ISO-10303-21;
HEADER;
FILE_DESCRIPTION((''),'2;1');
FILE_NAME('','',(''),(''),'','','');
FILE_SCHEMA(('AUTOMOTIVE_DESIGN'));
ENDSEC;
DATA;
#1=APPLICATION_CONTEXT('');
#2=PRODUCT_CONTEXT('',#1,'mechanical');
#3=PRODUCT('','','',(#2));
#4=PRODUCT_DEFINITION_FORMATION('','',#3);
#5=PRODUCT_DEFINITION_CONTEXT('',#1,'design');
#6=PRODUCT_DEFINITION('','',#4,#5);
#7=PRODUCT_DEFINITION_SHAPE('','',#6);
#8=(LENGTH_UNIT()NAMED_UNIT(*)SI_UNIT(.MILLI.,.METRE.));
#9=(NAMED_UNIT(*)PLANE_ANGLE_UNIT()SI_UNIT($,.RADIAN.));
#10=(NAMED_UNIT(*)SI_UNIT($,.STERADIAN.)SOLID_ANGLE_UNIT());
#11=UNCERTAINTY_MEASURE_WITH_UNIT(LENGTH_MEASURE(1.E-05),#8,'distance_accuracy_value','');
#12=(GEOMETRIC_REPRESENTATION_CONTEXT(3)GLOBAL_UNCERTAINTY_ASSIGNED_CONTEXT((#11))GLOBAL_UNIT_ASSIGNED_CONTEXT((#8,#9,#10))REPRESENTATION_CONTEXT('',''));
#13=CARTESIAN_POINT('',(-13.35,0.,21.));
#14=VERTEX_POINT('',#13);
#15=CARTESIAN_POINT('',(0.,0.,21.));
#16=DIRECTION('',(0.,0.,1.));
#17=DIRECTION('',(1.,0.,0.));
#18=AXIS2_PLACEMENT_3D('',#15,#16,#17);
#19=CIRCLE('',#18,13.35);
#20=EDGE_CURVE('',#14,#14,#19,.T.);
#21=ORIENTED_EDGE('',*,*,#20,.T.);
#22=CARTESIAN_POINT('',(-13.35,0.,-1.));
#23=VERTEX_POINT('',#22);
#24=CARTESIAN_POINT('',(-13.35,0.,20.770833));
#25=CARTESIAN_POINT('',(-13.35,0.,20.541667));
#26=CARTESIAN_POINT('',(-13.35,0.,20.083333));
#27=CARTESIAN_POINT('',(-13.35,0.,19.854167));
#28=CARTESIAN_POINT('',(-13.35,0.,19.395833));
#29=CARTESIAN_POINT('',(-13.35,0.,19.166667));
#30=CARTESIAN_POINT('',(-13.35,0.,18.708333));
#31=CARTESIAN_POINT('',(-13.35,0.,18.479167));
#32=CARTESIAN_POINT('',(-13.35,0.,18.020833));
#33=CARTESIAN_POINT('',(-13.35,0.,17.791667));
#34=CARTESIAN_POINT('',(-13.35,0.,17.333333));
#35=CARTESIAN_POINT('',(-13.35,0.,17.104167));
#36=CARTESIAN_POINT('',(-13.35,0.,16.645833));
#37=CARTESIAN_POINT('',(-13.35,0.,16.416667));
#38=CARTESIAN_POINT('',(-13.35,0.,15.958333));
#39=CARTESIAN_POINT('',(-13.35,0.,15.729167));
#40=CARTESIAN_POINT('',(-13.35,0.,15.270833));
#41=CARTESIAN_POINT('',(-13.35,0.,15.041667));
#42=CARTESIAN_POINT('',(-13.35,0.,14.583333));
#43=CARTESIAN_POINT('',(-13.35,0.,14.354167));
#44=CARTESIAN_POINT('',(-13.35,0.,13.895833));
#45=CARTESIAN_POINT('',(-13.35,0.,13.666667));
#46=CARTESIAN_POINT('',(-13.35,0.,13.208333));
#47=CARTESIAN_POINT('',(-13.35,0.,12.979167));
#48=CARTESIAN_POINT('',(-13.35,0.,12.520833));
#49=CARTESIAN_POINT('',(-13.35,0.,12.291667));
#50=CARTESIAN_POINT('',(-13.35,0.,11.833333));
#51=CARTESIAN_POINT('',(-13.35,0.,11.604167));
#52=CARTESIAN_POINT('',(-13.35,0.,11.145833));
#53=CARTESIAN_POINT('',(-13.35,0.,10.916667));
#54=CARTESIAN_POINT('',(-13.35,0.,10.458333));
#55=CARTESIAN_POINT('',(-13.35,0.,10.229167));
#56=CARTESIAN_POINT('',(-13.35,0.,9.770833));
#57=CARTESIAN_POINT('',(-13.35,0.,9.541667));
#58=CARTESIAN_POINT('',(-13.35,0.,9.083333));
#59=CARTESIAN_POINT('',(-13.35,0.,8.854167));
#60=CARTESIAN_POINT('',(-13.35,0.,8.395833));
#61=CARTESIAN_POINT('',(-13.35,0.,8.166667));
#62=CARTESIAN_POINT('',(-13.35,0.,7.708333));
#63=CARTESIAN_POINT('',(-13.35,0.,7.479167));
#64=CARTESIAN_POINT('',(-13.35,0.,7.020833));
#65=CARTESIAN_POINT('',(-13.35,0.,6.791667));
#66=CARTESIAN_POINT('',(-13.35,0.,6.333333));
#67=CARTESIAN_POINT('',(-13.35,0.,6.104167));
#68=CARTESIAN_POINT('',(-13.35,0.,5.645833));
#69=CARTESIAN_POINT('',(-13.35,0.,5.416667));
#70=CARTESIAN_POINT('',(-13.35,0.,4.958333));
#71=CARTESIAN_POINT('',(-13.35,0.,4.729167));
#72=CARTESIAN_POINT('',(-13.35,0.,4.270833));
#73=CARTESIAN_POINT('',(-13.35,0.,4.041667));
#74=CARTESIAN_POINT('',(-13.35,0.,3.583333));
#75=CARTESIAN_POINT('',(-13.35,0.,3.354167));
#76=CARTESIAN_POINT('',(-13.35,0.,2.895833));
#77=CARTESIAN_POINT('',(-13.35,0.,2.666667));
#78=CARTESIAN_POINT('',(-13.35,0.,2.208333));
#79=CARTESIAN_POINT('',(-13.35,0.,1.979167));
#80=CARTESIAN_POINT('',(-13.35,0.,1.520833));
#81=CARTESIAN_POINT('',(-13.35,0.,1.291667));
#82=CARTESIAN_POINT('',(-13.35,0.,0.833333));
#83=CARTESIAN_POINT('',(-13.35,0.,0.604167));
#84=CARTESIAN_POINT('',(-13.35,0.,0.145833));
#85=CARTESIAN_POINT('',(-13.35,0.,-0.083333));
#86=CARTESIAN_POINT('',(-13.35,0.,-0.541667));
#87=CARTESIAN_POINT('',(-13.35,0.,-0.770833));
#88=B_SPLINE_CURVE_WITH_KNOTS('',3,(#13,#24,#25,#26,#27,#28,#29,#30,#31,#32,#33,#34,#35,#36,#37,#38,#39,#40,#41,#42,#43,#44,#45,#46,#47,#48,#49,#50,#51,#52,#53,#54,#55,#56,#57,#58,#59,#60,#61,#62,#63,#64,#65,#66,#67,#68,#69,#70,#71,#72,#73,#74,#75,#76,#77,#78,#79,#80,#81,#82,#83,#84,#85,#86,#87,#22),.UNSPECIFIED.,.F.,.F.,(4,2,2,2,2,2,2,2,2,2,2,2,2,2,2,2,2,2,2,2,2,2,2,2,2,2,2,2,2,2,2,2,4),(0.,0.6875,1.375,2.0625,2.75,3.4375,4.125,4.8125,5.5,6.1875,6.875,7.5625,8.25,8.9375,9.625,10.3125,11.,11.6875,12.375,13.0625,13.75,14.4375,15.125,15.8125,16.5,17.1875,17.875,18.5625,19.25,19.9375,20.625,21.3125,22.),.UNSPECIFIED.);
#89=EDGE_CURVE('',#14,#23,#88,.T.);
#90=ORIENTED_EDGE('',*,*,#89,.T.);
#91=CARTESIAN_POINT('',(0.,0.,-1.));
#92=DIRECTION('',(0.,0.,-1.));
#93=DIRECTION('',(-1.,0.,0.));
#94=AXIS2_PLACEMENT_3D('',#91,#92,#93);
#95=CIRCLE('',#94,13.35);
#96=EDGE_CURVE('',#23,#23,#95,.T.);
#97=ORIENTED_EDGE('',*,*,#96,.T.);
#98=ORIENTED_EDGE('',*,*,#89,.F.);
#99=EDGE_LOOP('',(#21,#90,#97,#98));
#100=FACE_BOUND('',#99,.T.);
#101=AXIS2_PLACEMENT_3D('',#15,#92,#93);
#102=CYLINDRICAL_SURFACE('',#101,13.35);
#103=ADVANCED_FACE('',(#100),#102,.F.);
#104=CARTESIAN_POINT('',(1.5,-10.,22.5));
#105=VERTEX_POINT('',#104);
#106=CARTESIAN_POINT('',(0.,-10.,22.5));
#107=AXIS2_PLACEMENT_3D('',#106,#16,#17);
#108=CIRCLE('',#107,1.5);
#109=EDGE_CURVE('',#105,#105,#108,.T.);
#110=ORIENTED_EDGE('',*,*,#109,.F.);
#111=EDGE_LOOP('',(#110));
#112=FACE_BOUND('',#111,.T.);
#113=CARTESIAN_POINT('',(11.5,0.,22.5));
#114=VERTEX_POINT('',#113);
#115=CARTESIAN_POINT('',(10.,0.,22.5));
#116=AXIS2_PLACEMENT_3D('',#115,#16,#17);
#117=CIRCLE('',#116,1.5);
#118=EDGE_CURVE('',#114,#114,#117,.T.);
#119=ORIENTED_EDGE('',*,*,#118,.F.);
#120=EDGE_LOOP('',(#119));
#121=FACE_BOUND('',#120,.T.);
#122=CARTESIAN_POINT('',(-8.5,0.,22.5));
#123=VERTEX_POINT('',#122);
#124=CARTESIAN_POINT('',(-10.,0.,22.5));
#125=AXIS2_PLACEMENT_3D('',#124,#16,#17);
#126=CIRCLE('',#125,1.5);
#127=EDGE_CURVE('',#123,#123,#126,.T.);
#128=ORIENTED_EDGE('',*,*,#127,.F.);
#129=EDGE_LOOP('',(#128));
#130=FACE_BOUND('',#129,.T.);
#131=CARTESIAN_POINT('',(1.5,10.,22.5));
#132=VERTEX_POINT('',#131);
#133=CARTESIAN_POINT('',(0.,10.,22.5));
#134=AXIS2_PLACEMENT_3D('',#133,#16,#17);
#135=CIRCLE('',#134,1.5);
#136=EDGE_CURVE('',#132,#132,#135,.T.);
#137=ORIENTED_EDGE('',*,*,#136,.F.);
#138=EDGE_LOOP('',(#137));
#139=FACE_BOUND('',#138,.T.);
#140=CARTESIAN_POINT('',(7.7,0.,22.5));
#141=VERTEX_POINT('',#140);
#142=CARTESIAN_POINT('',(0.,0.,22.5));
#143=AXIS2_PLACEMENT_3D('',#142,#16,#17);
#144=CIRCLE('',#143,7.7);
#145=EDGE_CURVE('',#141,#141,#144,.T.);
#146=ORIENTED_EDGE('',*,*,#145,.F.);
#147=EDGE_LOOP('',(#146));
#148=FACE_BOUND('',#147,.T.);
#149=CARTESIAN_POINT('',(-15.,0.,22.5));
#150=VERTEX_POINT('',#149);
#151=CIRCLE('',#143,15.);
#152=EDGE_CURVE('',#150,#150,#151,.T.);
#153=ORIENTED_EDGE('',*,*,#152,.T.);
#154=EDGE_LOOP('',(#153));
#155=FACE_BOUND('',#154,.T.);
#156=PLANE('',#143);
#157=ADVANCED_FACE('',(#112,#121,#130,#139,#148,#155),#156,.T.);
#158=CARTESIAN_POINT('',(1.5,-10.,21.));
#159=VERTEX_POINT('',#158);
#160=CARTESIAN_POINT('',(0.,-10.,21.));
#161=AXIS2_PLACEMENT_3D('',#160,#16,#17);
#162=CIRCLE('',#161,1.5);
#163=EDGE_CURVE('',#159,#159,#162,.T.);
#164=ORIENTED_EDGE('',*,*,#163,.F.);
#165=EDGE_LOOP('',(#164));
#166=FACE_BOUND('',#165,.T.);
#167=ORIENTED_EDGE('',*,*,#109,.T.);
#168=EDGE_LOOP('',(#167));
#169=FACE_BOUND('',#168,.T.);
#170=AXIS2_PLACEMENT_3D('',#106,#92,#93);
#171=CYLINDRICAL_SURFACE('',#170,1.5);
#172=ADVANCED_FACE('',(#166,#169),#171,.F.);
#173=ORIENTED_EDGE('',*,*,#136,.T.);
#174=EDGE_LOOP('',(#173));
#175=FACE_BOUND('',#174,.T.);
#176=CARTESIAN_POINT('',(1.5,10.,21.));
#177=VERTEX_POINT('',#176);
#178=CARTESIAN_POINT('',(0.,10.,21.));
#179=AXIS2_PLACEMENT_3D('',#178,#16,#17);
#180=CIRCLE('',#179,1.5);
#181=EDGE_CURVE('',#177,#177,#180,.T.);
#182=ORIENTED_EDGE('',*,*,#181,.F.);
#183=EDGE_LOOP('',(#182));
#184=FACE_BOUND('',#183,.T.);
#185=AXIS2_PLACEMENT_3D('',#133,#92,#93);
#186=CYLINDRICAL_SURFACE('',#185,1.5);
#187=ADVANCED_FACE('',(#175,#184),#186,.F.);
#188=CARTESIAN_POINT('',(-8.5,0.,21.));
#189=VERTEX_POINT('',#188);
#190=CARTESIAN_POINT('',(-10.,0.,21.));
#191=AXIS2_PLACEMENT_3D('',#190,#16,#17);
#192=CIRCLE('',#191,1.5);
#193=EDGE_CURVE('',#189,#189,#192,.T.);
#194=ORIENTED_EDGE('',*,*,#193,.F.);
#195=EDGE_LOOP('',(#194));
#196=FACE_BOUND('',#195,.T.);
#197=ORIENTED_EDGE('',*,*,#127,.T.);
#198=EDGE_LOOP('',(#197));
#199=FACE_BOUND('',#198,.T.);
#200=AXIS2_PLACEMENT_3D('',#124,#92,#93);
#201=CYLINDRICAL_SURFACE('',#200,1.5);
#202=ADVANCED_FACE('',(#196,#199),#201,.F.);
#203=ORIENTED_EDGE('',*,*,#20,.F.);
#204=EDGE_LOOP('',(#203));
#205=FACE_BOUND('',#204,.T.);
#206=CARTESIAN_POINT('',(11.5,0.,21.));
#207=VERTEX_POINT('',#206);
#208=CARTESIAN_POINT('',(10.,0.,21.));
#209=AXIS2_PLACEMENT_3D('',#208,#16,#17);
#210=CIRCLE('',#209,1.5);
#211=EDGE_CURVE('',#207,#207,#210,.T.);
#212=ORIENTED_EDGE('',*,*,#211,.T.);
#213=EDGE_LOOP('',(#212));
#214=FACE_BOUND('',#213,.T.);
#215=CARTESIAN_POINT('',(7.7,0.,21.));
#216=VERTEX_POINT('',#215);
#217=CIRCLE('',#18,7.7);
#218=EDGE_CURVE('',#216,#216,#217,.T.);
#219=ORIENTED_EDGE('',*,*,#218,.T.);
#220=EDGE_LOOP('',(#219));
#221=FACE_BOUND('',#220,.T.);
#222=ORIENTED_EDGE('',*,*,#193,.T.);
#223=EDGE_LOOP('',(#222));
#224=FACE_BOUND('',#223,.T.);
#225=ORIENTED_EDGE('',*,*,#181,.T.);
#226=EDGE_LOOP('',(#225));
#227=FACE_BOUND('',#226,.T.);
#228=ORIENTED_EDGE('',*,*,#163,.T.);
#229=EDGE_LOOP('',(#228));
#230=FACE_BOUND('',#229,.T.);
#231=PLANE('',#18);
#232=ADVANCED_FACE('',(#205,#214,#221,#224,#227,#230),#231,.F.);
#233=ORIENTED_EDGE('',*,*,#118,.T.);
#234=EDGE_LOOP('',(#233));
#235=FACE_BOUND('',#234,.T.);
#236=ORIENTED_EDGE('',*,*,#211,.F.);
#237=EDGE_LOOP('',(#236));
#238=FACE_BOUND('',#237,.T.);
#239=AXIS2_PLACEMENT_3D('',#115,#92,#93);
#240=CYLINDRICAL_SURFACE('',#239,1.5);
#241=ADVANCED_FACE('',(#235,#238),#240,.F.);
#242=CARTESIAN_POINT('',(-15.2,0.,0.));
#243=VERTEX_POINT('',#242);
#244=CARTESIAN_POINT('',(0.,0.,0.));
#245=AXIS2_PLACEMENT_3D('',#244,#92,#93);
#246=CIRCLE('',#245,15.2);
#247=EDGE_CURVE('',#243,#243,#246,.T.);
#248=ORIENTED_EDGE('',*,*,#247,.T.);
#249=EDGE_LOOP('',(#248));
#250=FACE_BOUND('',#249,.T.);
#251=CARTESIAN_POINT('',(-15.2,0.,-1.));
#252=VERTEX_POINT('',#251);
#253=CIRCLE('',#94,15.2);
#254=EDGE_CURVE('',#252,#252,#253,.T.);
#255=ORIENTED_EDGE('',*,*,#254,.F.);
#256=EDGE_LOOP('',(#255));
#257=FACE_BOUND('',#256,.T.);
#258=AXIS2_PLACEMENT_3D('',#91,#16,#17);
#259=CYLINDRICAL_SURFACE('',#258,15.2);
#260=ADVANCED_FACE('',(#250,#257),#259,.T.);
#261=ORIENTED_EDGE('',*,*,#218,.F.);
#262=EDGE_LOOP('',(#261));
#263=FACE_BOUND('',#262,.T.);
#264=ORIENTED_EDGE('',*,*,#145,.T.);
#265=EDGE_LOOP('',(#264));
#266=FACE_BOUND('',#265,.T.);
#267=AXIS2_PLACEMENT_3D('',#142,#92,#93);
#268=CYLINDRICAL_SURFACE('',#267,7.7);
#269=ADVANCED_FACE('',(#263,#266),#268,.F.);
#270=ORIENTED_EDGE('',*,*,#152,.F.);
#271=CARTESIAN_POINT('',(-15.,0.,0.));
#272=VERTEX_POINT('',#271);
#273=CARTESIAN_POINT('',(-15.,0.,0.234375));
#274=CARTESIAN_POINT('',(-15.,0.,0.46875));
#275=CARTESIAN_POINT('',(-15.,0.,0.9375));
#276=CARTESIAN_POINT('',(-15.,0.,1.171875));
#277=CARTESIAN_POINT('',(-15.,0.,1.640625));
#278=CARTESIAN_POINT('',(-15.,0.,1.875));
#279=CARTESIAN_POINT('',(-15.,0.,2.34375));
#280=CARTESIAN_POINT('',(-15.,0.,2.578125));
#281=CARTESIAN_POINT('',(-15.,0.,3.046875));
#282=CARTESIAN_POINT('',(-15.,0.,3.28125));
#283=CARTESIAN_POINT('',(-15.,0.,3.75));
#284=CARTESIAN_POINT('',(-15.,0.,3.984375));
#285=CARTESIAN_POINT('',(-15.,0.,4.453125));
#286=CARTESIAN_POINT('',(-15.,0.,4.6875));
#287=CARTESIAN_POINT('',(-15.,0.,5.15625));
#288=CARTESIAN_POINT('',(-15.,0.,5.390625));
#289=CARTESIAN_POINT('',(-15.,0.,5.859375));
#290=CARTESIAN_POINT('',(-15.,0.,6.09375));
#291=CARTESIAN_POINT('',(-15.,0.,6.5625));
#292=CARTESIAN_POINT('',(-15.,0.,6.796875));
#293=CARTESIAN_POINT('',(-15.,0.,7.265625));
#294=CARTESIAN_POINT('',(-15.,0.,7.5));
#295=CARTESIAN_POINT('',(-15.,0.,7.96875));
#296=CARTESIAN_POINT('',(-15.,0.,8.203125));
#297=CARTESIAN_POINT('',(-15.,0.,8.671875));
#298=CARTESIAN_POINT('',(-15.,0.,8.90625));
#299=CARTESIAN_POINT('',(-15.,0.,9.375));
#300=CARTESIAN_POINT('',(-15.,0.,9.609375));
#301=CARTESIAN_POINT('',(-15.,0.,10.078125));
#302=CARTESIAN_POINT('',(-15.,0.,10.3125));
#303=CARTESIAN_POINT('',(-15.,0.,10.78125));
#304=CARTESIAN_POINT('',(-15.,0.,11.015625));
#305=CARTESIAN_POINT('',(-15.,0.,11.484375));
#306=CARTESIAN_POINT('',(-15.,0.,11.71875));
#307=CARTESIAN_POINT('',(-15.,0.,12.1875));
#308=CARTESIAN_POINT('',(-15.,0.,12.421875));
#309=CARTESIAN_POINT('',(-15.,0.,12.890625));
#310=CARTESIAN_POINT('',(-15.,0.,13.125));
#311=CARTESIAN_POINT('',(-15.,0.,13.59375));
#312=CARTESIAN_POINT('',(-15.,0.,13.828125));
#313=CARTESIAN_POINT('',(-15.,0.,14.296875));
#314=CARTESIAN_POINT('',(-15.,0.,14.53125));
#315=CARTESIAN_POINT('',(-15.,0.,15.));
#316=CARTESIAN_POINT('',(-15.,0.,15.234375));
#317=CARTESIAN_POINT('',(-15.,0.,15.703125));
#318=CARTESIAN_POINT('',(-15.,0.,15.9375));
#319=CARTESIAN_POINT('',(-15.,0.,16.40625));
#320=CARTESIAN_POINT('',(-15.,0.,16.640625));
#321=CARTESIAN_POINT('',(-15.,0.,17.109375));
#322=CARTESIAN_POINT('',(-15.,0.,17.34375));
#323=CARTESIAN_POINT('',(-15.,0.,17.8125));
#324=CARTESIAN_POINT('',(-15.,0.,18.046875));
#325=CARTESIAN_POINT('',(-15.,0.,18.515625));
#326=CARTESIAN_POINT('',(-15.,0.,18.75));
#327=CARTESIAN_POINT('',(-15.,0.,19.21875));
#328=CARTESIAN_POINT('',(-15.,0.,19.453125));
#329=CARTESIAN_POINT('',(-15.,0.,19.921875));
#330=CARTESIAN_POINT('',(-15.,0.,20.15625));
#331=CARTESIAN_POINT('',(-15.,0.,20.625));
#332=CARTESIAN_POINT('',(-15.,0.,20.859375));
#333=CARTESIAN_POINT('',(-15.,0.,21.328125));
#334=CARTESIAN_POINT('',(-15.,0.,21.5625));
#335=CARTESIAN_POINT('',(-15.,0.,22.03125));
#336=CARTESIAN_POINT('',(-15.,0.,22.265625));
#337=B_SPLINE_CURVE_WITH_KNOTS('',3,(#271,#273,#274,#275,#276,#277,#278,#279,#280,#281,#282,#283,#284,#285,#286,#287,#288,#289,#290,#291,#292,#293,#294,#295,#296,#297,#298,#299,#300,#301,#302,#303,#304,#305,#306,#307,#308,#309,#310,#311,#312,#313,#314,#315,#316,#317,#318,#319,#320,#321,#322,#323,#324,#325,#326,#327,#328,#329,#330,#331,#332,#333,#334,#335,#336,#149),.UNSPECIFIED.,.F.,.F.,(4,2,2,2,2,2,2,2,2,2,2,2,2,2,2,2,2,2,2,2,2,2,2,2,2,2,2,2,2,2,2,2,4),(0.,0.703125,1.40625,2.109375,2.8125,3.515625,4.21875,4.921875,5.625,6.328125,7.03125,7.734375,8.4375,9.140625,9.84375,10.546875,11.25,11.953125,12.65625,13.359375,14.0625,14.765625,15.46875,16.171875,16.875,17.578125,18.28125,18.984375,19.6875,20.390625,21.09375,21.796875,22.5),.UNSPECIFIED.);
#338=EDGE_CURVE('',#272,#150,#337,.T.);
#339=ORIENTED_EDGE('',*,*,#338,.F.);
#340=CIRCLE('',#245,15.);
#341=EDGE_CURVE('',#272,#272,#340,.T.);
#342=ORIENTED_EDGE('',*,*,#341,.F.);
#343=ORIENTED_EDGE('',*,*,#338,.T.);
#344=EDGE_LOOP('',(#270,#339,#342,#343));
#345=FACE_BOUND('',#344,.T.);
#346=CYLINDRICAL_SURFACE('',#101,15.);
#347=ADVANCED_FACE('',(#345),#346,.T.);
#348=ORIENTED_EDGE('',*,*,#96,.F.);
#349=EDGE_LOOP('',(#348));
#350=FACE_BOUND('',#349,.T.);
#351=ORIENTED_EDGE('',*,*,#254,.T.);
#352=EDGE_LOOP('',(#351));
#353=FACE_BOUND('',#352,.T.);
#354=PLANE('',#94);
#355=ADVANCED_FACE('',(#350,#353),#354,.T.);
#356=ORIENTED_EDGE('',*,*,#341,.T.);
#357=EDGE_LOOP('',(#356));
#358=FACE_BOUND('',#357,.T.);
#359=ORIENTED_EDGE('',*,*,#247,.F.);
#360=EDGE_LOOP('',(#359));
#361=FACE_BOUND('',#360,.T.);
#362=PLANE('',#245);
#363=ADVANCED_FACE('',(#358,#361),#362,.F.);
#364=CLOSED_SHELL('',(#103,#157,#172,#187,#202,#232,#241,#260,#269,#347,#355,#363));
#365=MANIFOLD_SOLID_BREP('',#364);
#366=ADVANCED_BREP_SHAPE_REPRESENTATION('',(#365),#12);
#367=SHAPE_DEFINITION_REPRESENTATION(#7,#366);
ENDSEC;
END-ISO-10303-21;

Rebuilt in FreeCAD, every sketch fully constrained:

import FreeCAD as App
import Part
import Sketcher

V = App.Vector
Q = App.Units.Quantity

doc = App.newDocument("Part")
body = doc.addObject("PartDesign::Body", "Body")

# Sketch on XY plane
sketch1 = body.newObject("Sketcher::SketchObject", "Sketch")
sketch1.AttachmentSupport = (doc.getObject("XY_Plane"), [""])
sketch1.MapMode = "FlatFace"
sketch1.addGeometry(Part.Circle(V(0, 0, 0), V(0, 0, 1), 15), False)
sketch1.addGeometry(Part.Circle(V(0, 0, 0), V(0, 0, 1), 13.35), False)
sketch1.addConstraint(Sketcher.Constraint("Coincident", 0, 3, -1, 1))
sketch1.addConstraint(Sketcher.Constraint("Coincident", 1, 3, -1, 1))
sketch1.addConstraint(Sketcher.Constraint("Diameter", 0, Q("30 mm")))
sketch1.addConstraint(Sketcher.Constraint("Diameter", 1, Q("26.7 mm")))
pad1 = body.newObject("PartDesign::Pad", "Pad")
pad1.Profile = sketch1
pad1.Length = 21

# Sketch on XY plane
sketch2 = body.newObject("Sketcher::SketchObject", "Sketch001")
sketch2.AttachmentSupport = (doc.getObject("XY_Plane"), [""])
sketch2.MapMode = "FlatFace"
sketch2.AttachmentOffset = App.Placement(V(0, 0, -1), App.Rotation())
sketch2.addGeometry(Part.Circle(V(0, 0, 0), V(0, 0, 1), 15.2), False)
sketch2.addGeometry(Part.Circle(V(0, 0, 0), V(0, 0, 1), 13.35), False)
sketch2.addConstraint(Sketcher.Constraint("Coincident", 0, 3, -1, 1))
sketch2.addConstraint(Sketcher.Constraint("Coincident", 1, 3, -1, 1))
sketch2.addConstraint(Sketcher.Constraint("Diameter", 0, Q("30.4 mm")))
sketch2.addConstraint(Sketcher.Constraint("Diameter", 1, Q("26.7 mm")))
pad2 = body.newObject("PartDesign::Pad", "Pad001")
pad2.Profile = sketch2
pad2.Length = 1

# Sketch on XY plane
sketch3 = body.newObject("Sketcher::SketchObject", "Sketch002")
sketch3.AttachmentSupport = (doc.getObject("XY_Plane"), [""])
sketch3.MapMode = "FlatFace"
sketch3.AttachmentOffset = App.Placement(V(0, 0, 21), App.Rotation())
sketch3.addGeometry(Part.Circle(V(0, 0, 0), V(0, 0, 1), 15), False)
sketch3.addGeometry(Part.Circle(V(10, 0, 0), V(0, 0, 1), 1.5), False)
sketch3.addGeometry(Part.Circle(V(0, 10, 0), V(0, 0, 1), 1.5), False)
sketch3.addGeometry(Part.Circle(V(0, 0, 0), V(0, 0, 1), 7.7), False)
sketch3.addGeometry(Part.Circle(V(-10, 0, 0), V(0, 0, 1), 1.5), False)
sketch3.addGeometry(Part.Circle(V(0, -10, 0), V(0, 0, 1), 1.5), False)
sketch3.addConstraint(Sketcher.Constraint("Coincident", 0, 3, -1, 1))
sketch3.addConstraint(Sketcher.Constraint("Coincident", 3, 3, -1, 1))
sketch3.addConstraint(Sketcher.Constraint("Equal", 1, 2))
sketch3.addConstraint(Sketcher.Constraint("Equal", 2, 4))
sketch3.addConstraint(Sketcher.Constraint("Equal", 4, 5))
sketch3.addConstraint(Sketcher.Constraint("Symmetric", 1, 3, 4, 3, -1, 1))
sketch3.addConstraint(Sketcher.Constraint("Symmetric", 2, 3, 5, 3, -1, 1))
sketch3.addConstraint(Sketcher.Constraint("PointOnObject", 1, 3, -1))
sketch3.addConstraint(Sketcher.Constraint("PointOnObject", 2, 3, -2))
sketch3.addConstraint(Sketcher.Constraint("Diameter", 0, Q("30 mm")))
sketch3.addConstraint(Sketcher.Constraint("Diameter", 1, Q("3 mm")))
sketch3.addConstraint(Sketcher.Constraint("Diameter", 3, Q("15.4 mm")))
sketch3.addConstraint(Sketcher.Constraint("DistanceX", -1, 1, 1, 3, Q("10 mm")))
sketch3.addConstraint(Sketcher.Constraint("DistanceY", -1, 1, 2, 3, Q("10 mm")))
pad3 = body.newObject("PartDesign::Pad", "Pad002")
pad3.Profile = sketch3
pad3.Length = 1.5

doc.recompute()
